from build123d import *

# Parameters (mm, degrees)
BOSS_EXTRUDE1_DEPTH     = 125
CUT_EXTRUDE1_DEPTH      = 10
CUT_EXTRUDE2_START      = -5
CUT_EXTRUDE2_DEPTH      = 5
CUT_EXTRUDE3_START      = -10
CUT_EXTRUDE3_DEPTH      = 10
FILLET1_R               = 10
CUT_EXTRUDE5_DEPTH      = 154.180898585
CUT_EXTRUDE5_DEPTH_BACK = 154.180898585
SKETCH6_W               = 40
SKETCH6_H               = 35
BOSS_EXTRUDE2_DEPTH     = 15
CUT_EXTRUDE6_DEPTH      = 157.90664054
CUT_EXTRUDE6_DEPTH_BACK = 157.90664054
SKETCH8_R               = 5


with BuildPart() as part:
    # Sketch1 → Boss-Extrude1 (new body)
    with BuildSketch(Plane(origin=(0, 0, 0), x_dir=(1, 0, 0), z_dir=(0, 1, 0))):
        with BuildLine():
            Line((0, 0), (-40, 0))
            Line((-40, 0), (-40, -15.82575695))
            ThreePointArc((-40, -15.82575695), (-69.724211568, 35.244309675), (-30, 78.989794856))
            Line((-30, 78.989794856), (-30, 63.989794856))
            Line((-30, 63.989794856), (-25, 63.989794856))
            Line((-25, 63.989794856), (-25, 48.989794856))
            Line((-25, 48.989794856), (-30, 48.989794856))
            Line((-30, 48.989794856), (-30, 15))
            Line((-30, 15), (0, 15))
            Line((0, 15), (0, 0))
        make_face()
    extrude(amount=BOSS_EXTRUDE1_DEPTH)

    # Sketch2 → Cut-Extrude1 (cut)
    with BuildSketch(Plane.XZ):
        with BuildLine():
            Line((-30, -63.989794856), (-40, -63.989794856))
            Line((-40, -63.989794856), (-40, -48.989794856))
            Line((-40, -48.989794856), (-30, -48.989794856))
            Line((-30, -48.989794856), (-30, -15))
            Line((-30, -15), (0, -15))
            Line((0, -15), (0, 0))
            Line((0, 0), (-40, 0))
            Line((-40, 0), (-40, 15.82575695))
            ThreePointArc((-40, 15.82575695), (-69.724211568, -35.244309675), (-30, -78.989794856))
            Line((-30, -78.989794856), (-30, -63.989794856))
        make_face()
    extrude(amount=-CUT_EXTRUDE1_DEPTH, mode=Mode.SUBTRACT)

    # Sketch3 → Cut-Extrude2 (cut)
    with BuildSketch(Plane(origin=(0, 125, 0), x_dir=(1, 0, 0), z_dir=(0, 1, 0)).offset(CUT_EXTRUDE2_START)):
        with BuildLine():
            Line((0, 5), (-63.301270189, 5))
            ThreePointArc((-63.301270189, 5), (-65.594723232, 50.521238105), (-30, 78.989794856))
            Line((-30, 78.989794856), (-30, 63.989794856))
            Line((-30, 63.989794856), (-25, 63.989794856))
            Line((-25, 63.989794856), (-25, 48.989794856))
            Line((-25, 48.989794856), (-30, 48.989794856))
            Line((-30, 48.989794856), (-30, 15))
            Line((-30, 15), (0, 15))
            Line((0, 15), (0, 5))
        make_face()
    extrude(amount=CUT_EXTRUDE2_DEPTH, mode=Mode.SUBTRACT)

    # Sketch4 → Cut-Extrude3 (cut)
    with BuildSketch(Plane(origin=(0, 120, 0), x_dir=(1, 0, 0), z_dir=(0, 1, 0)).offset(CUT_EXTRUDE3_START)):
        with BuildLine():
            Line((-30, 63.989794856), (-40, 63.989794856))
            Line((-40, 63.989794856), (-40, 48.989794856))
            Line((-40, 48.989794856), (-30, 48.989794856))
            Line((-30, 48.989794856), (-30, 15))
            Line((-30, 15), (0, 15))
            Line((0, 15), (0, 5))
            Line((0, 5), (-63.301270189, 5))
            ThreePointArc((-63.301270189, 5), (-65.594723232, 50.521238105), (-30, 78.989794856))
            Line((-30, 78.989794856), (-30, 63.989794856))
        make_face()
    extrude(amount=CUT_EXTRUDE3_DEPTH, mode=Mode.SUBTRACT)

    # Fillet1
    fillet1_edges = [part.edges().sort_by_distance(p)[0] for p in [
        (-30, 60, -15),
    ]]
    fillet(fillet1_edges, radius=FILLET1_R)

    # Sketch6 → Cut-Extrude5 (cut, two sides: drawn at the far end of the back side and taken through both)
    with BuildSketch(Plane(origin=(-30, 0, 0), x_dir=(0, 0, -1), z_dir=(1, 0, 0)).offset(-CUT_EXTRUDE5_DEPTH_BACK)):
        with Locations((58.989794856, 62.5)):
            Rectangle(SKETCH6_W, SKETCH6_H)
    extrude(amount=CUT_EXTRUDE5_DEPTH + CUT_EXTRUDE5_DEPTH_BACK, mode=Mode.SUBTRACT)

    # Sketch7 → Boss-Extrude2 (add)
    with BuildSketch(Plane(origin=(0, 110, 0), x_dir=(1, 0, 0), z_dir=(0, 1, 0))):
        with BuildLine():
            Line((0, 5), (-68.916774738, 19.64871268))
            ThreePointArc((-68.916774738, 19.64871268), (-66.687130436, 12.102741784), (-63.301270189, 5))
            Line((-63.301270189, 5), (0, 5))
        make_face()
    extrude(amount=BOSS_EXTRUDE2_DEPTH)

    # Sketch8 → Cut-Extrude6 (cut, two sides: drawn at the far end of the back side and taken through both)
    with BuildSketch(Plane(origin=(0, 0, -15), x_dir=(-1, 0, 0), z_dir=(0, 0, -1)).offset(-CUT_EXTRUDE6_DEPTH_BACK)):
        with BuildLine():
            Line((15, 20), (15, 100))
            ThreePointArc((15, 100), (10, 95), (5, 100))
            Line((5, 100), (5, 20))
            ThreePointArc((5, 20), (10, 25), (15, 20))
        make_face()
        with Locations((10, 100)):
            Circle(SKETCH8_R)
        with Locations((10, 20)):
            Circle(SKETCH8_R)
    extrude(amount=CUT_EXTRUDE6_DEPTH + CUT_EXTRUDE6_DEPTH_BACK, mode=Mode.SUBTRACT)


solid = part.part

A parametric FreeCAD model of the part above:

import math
import FreeCAD as App
import Part
import Sketcher
Q = App.Units.Quantity


def edges_at(feature, points):
    """Names of the edges that pass closest to the given points."""
    edges = feature.Shape.Edges
    near = lambda p: min(range(len(edges)), key=lambda i: edges[i].distToShape(Part.Vertex(*p))[0])
    return sorted({f"Edge{near(p) + 1}" for p in points})

doc = App.newDocument("Part")
params = doc.addObject("Spreadsheet::Sheet", "Params")
for row, (alias, value) in enumerate([
    ("sketch1_radius", "50 mm"),
    ("sketch1_width", "40 mm"),
    ("sketch1_width2", "30 mm"),
    ("sketch1_width3", "5 mm"),
    ("sketch1_height", "15 mm"),
    ("pad1_length", "125 mm"),
    ("sketch2_radius", "50 mm"),
    ("sketch2_width", "10 mm"),
    ("sketch2_width2", "30 mm"),
    ("sketch2_height", "15 mm"),
    ("pocket1_length", "10 mm"),
    ("sketch3_radius", "50 mm"),
    ("sketch3_width", "30 mm"),
    ("sketch3_width2", "5 mm"),
    ("sketch3_height", "10 mm"),
    ("sketch3_height2", "15 mm"),
    ("pocket2_length", "5 mm"),
    ("sketch4_radius", "50 mm"),
    ("sketch4_width", "10 mm"),
    ("sketch4_width2", "30 mm"),
    ("sketch4_height", "15 mm"),
    ("pocket3_length", "10 mm"),
    ("fillet_radius", "10 mm"),
    ("sketch5_width", "35 mm"),
    ("sketch5_height", "40 mm"),
    ("sketch6_radius", "50 mm"),
    ("pad2_length", "15 mm"),
    ("sketch7_radius", "5 mm"),
    ("sketch7_height", "80 mm"),
], start=1):
    params.set(f"A{row}", alias)
    params.set(f"B{row}", "=" + value)
    params.setAlias(f"B{row}", alias)

body = doc.addObject("PartDesign::Body", "Body")

# Sketch on XZ plane
sketch1 = body.newObject("Sketcher::SketchObject", "Sketch")
sketch1.AttachmentSupport = (doc.getObject("XZ_Plane"), [""])
sketch1.MapMode = "FlatFace"
sketch1.addGeometry(Part.LineSegment(App.Vector(-40, 0, 0), App.Vector(0, 0, 0)), False)
sketch1.addGeometry(Part.LineSegment(App.Vector(0, 0, 0), App.Vector(0, -15, 0)), False)
sketch1.addGeometry(Part.LineSegment(App.Vector(0, -15, 0), App.Vector(-30, -15, 0)), False)
sketch1.addGeometry(Part.LineSegment(App.Vector(-30, -15, 0), App.Vector(-30, -49, 0)), False)
sketch1.addGeometry(Part.LineSegment(App.Vector(-30, -49, 0), App.Vector(-25, -49, 0)), False)
sketch1.addGeometry(Part.LineSegment(App.Vector(-25, -49, 0), App.Vector(-25, -64, 0)), False)
sketch1.addGeometry(Part.LineSegment(App.Vector(-25, -64, 0), App.Vector(-30, -64, 0)), False)
sketch1.addGeometry(Part.LineSegment(App.Vector(-30, -64, 0), App.Vector(-30, -79, 0)), False)
sketch1.addGeometry(Part.ArcOfCircle(Part.Circle(App.Vector(-20, -30, 0), App.Vector(0, 0, 1), 50), math.radians(114), math.radians(258)), False)
sketch1.addGeometry(Part.LineSegment(App.Vector(-40, 16, 0), App.Vector(-40, 0, 0)), False)
sketch1.addConstraint(Sketcher.Constraint("Coincident", 0, 2, 1, 1))
sketch1.addConstraint(Sketcher.Constraint("Coincident", 1, 2, 2, 1))
sketch1.addConstraint(Sketcher.Constraint("Coincident", 2, 2, 3, 1))
sketch1.addConstraint(Sketcher.Constraint("Coincident", 3, 2, 4, 1))
sketch1.addConstraint(Sketcher.Constraint("Coincident", 4, 2, 5, 1))
sketch1.addConstraint(Sketcher.Constraint("Coincident", 5, 2, 6, 1))
sketch1.addConstraint(Sketcher.Constraint("Coincident", 6, 2, 7, 1))
sketch1.addConstraint(Sketcher.Constraint("Coincident", 7, 2, 8, 2))
sketch1.addConstraint(Sketcher.Constraint("Coincident", 8, 1, 9, 1))
sketch1.addConstraint(Sketcher.Constraint("Coincident", 9, 2, 0, 1))
sketch1.addConstraint(Sketcher.Constraint("Horizontal", 0))
sketch1.addConstraint(Sketcher.Constraint("Vertical", 1))
sketch1.addConstraint(Sketcher.Constraint("Horizontal", 2))
sketch1.addConstraint(Sketcher.Constraint("Vertical", 3))
sketch1.addConstraint(Sketcher.Constraint("Horizontal", 4))
sketch1.addConstraint(Sketcher.Constraint("Vertical", 5))
sketch1.addConstraint(Sketcher.Constraint("Horizontal", 6))
sketch1.addConstraint(Sketcher.Constraint("Vertical", 7))
sketch1.addConstraint(Sketcher.Constraint("Vertical", 9))
sketch1.addConstraint(Sketcher.Constraint("Coincident", 0, 2, -1, 1))
sketch1.addConstraint(Sketcher.Constraint("Vertical", 3, 2, 6, 2))
sketch1.addConstraint(Sketcher.Constraint("Equal", 1, 5))
sketch1.addConstraint(Sketcher.Constraint("Equal", 5, 7))
sketch1.addConstraint(Sketcher.Constraint("Radius", 8, 50.0))
sketch1.addConstraint(Sketcher.Constraint("DistanceX", 0, 1, 0, 2, 40.0))
sketch1.addConstraint(Sketcher.Constraint("DistanceX", 2, 2, 2, 1, 30.0))
sketch1.addConstraint(Sketcher.Constraint("DistanceX", 4, 1, 4, 2, 5.0))
sketch1.addConstraint(Sketcher.Constraint("DistanceY", 1, 2, 1, 1, 15.0))
sketch1.addConstraint(Sketcher.Constraint("DistanceX", 8, 3, -1, 1, 20.0))
sketch1.addConstraint(Sketcher.Constraint("DistanceY", 8, 3, -1, 1, 30.0))
sketch1.setExpression("Constraints[23]", "Params.sketch1_radius")
sketch1.setExpression("Constraints[24]", "Params.sketch1_width")
sketch1.setExpression("Constraints[25]", "Params.sketch1_width2")
sketch1.setExpression("Constraints[26]", "Params.sketch1_width3")
sketch1.setExpression("Constraints[27]", "Params.sketch1_height")
pad1 = body.newObject("PartDesign::Pad", "Pad")
pad1.Profile = sketch1
pad1.setExpression("Length", "Params.pad1_length")
pad1.Reversed = True

# Sketch on XZ plane
sketch2 = body.newObject("Sketcher::SketchObject", "Sketch001")
sketch2.AttachmentSupport = (doc.getObject("XZ_Plane"), [""])
sketch2.MapMode = "FlatFace"
sketch2.addGeometry(Part.LineSegment(App.Vector(-30, -64, 0), App.Vector(-40, -64, 0)), False)
sketch2.addGeometry(Part.LineSegment(App.Vector(-40, -64, 0), App.Vector(-40, -49, 0)), False)
sketch2.addGeometry(Part.LineSegment(App.Vector(-40, -49, 0), App.Vector(-30, -49, 0)), False)
sketch2.addGeometry(Part.LineSegment(App.Vector(-30, -49, 0), App.Vector(-30, -15, 0)), False)
sketch2.addGeometry(Part.LineSegment(App.Vector(-30, -15, 0), App.Vector(0, -15, 0)), False)
sketch2.addGeometry(Part.LineSegment(App.Vector(0, -15, 0), App.Vector(0, 0, 0)), False)
sketch2.addGeometry(Part.LineSegment(App.Vector(0, 0, 0), App.Vector(-40, 0, 0)), False)
sketch2.addGeometry(Part.LineSegment(App.Vector(-40, 0, 0), App.Vector(-40, 16, 0)), False)
sketch2.addGeometry(Part.ArcOfCircle(Part.Circle(App.Vector(-20, -30, 0), App.Vector(0, 0, 1), 50), math.radians(114), math.radians(258)), False)
sketch2.addGeometry(Part.LineSegment(App.Vector(-30, -79, 0), App.Vector(-30, -64, 0)), False)
sketch2.addConstraint(Sketcher.Constraint("Coincident", 0, 2, 1, 1))
sketch2.addConstraint(Sketcher.Constraint("Coincident", 1, 2, 2, 1))
sketch2.addConstraint(Sketcher.Constraint("Coincident", 2, 2, 3, 1))
sketch2.addConstraint(Sketcher.Constraint("Coincident", 3, 2, 4, 1))
sketch2.addConstraint(Sketcher.Constraint("Coincident", 4, 2, 5, 1))
sketch2.addConstraint(Sketcher.Constraint("Coincident", 5, 2, 6, 1))
sketch2.addConstraint(Sketcher.Constraint("Coincident", 6, 2, 7, 1))
sketch2.addConstraint(Sketcher.Constraint("Coincident", 7, 2, 8, 1))
sketch2.addConstraint(Sketcher.Constraint("Coincident", 8, 2, 9, 1))
sketch2.addConstraint(Sketcher.Constraint("Coincident", 9, 2, 0, 1))
sketch2.addConstraint(Sketcher.Constraint("Horizontal", 0))
sketch2.addConstraint(Sketcher.Constraint("Vertical", 1))
sketch2.addConstraint(Sketcher.Constraint("Horizontal", 2))
sketch2.addConstraint(Sketcher.Constraint("Vertical", 3))
sketch2.addConstraint(Sketcher.Constraint("Horizontal", 4))
sketch2.addConstraint(Sketcher.Constraint("Vertical", 5))
sketch2.addConstraint(Sketcher.Constraint("Horizontal", 6))
sketch2.addConstraint(Sketcher.Constraint("Vertical", 7))
sketch2.addConstraint(Sketcher.Constraint("Vertical", 9))
sketch2.addConstraint(Sketcher.Constraint("Coincident", 5, 2, -1, 1))
sketch2.addConstraint(Sketcher.Constraint("Vertical", 1, 2, 6, 2))
sketch2.addConstraint(Sketcher.Constraint("Vertical", 3, 2, 8, 2))
sketch2.addConstraint(Sketcher.Constraint("Equal", 1, 5))
sketch2.addConstraint(Sketcher.Constraint("Equal", 5, 9))
sketch2.addConstraint(Sketcher.Constraint("Radius", 8, 50.0))
sketch2.addConstraint(Sketcher.Constraint("DistanceX", 0, 2, 0, 1, 10.0))
sketch2.addConstraint(Sketcher.Constraint("DistanceX", 4, 1, 4, 2, 30.0))
sketch2.addConstraint(Sketcher.Constraint("DistanceY", 1, 1, 1, 2, 15.0))
sketch2.addConstraint(Sketcher.Constraint("DistanceX", 8, 3, -1, 1, 20.0))
sketch2.addConstraint(Sketcher.Constraint("DistanceY", 8, 3, -1, 1, 30.0))
sketch2.setExpression("Constraints[24]", "Params.sketch2_radius")
sketch2.setExpression("Constraints[25]", "Params.sketch2_width")
sketch2.setExpression("Constraints[26]", "Params.sketch2_width2")
sketch2.setExpression("Constraints[27]", "Params.sketch2_height")
pocket1 = body.newObject("PartDesign::Pocket", "Pocket")
pocket1.Profile = sketch2
pocket1.setExpression("Length", "Params.pocket1_length")

# Sketch on XZ plane
sketch3 = body.newObject("Sketcher::SketchObject", "Sketch002")
sketch3.AttachmentSupport = (doc.getObject("XZ_Plane"), [""])
sketch3.MapMode = "FlatFace"
sketch3.AttachmentOffset = App.Placement(App.Vector(0, 0, -120), App.Rotation())
sketch3.addGeometry(Part.LineSegment(App.Vector(-63, -5, 0), App.Vector(0, -5, 0)), False)
sketch3.addGeometry(Part.LineSegment(App.Vector(0, -5, 0), App.Vector(0, -15, 0)), False)
sketch3.addGeometry(Part.LineSegment(App.Vector(0, -15, 0), App.Vector(-30, -15, 0)), False)
sketch3.addGeometry(Part.LineSegment(App.Vector(-30, -15, 0), App.Vector(-30, -49, 0)), False)
sketch3.addGeometry(Part.LineSegment(App.Vector(-30, -49, 0), App.Vector(-25, -49, 0)), False)
sketch3.addGeometry(Part.LineSegment(App.Vector(-25, -49, 0), App.Vector(-25, -64, 0)), False)
sketch3.addGeometry(Part.LineSegment(App.Vector(-25, -64, 0), App.Vector(-30, -64, 0)), False)
sketch3.addGeometry(Part.LineSegment(App.Vector(-30, -64, 0), App.Vector(-30, -79, 0)), False)
sketch3.addGeometry(Part.ArcOfCircle(Part.Circle(App.Vector(-20, -30, 0), App.Vector(0, 0, 1), 50), math.radians(150), math.radians(258)), False)
sketch3.addConstraint(Sketcher.Constraint("Coincident", 0, 2, 1, 1))
sketch3.addConstraint(Sketcher.Constraint("Coincident", 1, 2, 2, 1))
sketch3.addConstraint(Sketcher.Constraint("Coincident", 2, 2, 3, 1))
sketch3.addConstraint(Sketcher.Constraint("Coincident", 3, 2, 4, 1))
sketch3.addConstraint(Sketcher.Constraint("Coincident", 4, 2, 5, 1))
sketch3.addConstraint(Sketcher.Constraint("Coincident", 5, 2, 6, 1))
sketch3.addConstraint(Sketcher.Constraint("Coincident", 6, 2, 7, 1))
sketch3.addConstraint(Sketcher.Constraint("Coincident", 7, 2, 8, 2))
sketch3.addConstraint(Sketcher.Constraint("Coincident", 8, 1, 0, 1))
sketch3.addConstraint(Sketcher.Constraint("Horizontal", 0))
sketch3.addConstraint(Sketcher.Constraint("Vertical", 1))
sketch3.addConstraint(Sketcher.Constraint("Horizontal", 2))
sketch3.addConstraint(Sketcher.Constraint("Vertical", 3))
sketch3.addConstraint(Sketcher.Constraint("Horizontal", 4))
sketch3.addConstraint(Sketcher.Constraint("Vertical", 5))
sketch3.addConstraint(Sketcher.Constraint("Horizontal", 6))
sketch3.addConstraint(Sketcher.Constraint("Vertical", 7))
sketch3.addConstraint(Sketcher.Constraint("PointOnObject", 0, 2, -2))
sketch3.addConstraint(Sketcher.Constraint("Vertical", 3, 2, 6, 2))
sketch3.addConstraint(Sketcher.Constraint("Equal", 5, 7))
sketch3.addConstraint(Sketcher.Constraint("Radius", 8, 50.0))
sketch3.addConstraint(Sketcher.Constraint("DistanceX", 2, 2, 2, 1, 30.0))
sketch3.addConstraint(Sketcher.Constraint("DistanceX", 4, 1, 4, 2, 5.0))
sketch3.addConstraint(Sketcher.Constraint("DistanceY", 1, 2, 1, 1, 10.0))
sketch3.addConstraint(Sketcher.Constraint("DistanceY", 5, 2, 5, 1, 15.0))
sketch3.addConstraint(Sketcher.Constraint("DistanceX", 8, 3, -1, 1, 20.0))
sketch3.addConstraint(Sketcher.Constraint("DistanceY", 8, 3, -1, 1, 30.0))
sketch3.addConstraint(Sketcher.Constraint("DistanceY", 0, 2, -1, 1, 5.0))
sketch3.setExpression("Constraints[20]", "Params.sketch3_radius")
sketch3.setExpression("Constraints[21]", "Params.sketch3_width")
sketch3.setExpression("Constraints[22]", "Params.sketch3_width2")
sketch3.setExpression("Constraints[23]", "Params.sketch3_height")
sketch3.setExpression("Constraints[24]", "Params.sketch3_height2")
pocket2 = body.newObject("PartDesign::Pocket", "Pocket001")
pocket2.Profile = sketch3
pocket2.setExpression("Length", "Params.pocket2_length")

# Sketch on XZ plane
sketch4 = body.newObject("Sketcher::SketchObject", "Sketch003")
sketch4.AttachmentSupport = (doc.getObject("XZ_Plane"), [""])
sketch4.MapMode = "FlatFace"
sketch4.AttachmentOffset = App.Placement(App.Vector(0, 0, -110), App.Rotation())
sketch4.addGeometry(Part.LineSegment(App.Vector(-40, -64, 0), App.Vector(-30, -64, 0)), False)
sketch4.addGeometry(Part.LineSegment(App.Vector(-30, -64, 0), App.Vector(-30, -79, 0)), False)
sketch4.addGeometry(Part.ArcOfCircle(Part.Circle(App.Vector(-20, -30, 0), App.Vector(0, 0, 1), 50), math.radians(150), math.radians(258)), False)
sketch4.addGeometry(Part.LineSegment(App.Vector(-63, -5, 0), App.Vector(0, -5, 0)), False)
sketch4.addGeometry(Part.LineSegment(App.Vector(0, -5, 0), App.Vector(0, -15, 0)), False)
sketch4.addGeometry(Part.LineSegment(App.Vector(0, -15, 0), App.Vector(-30, -15, 0)), False)
sketch4.addGeometry(Part.LineSegment(App.Vector(-30, -15, 0), App.Vector(-30, -49, 0)), False)
sketch4.addGeometry(Part.LineSegment(App.Vector(-30, -49, 0), App.Vector(-40, -49, 0)), False)
sketch4.addGeometry(Part.LineSegment(App.Vector(-40, -49, 0), App.Vector(-40, -64, 0)), False)
sketch4.addConstraint(Sketcher.Constraint("Coincident", 0, 2, 1, 1))
sketch4.addConstraint(Sketcher.Constraint("Coincident", 1, 2, 2, 2))
sketch4.addConstraint(Sketcher.Constraint("Coincident", 2, 1, 3, 1))
sketch4.addConstraint(Sketcher.Constraint("Coincident", 3, 2, 4, 1))
sketch4.addConstraint(Sketcher.Constraint("Coincident", 4, 2, 5, 1))
sketch4.addConstraint(Sketcher.Constraint("Coincident", 5, 2, 6, 1))
sketch4.addConstraint(Sketcher.Constraint("Coincident", 6, 2, 7, 1))
sketch4.addConstraint(Sketcher.Constraint("Coincident", 7, 2, 8, 1))
sketch4.addConstraint(Sketcher.Constraint("Coincident", 8, 2, 0, 1))
sketch4.addConstraint(Sketcher.Constraint("Horizontal", 0))
sketch4.addConstraint(Sketcher.Constraint("Vertical", 1))
sketch4.addConstraint(Sketcher.Constraint("Horizontal", 3))
sketch4.addConstraint(Sketcher.Constraint("Vertical", 4))
sketch4.addConstraint(Sketcher.Constraint("Horizontal", 5))
sketch4.addConstraint(Sketcher.Constraint("Vertical", 6))
sketch4.addConstraint(Sketcher.Constraint("Horizontal", 7))
sketch4.addConstraint(Sketcher.Constraint("Vertical", 8))
sketch4.addConstraint(Sketcher.Constraint("PointOnObject", 3, 2, -2))
sketch4.addConstraint(Sketcher.Constraint("Vertical", 1, 2, 5, 2))
sketch4.addConstraint(Sketcher.Constraint("Equal", 7, 4))
sketch4.addConstraint(Sketcher.Constraint("Equal", 1, 8))
sketch4.addConstraint(Sketcher.Constraint("Radius", 2, 50.0))
sketch4.addConstraint(Sketcher.Constraint("DistanceX", 0, 1, 0, 2, 10.0))
sketch4.addConstraint(Sketcher.Constraint("DistanceX", 5, 2, 5, 1, 30.0))
sketch4.addConstraint(Sketcher.Constraint("DistanceY", 1, 2, 1, 1, 15.0))
sketch4.addConstraint(Sketcher.Constraint("DistanceX", 2, 3, -1, 1, 20.0))
sketch4.addConstraint(Sketcher.Constraint("DistanceY", 2, 3, -1, 1, 30.0))
sketch4.addConstraint(Sketcher.Constraint("DistanceY", 2, 1, -1, 1, 5.0))
sketch4.setExpression("Constraints[21]", "Params.sketch4_radius")
sketch4.setExpression("Constraints[22]", "Params.sketch4_width")
sketch4.setExpression("Constraints[23]", "Params.sketch4_width2")
sketch4.setExpression("Constraints[24]", "Params.sketch4_height")
pocket3 = body.newObject("PartDesign::Pocket", "Pocket002")
pocket3.Profile = sketch4
pocket3.setExpression("Length", "Params.pocket3_length")
doc.recompute()

fillet = body.newObject("PartDesign::Fillet", "Fillet")
fillet.Base = (pocket3, edges_at(pocket3, [(-30, 60, -15)]))
fillet.setExpression("Radius", "Params.fillet_radius")

# Sketch on YZ plane
sketch5 = body.newObject("Sketcher::SketchObject", "Sketch004")
sketch5.AttachmentSupport = (doc.getObject("YZ_Plane"), [""])
sketch5.MapMode = "FlatFace"
sketch5.AttachmentOffset = App.Placement(App.Vector(0, 0, -30), App.Rotation())
sketch5.addGeometry(Part.LineSegment(App.Vector(80, -39, 0), App.Vector(45, -39, 0)), False)
sketch5.addGeometry(Part.LineSegment(App.Vector(45, -39, 0), App.Vector(45, -79, 0)), False)
sketch5.addGeometry(Part.LineSegment(App.Vector(45, -79, 0), App.Vector(80, -79, 0)), False)
sketch5.addGeometry(Part.LineSegment(App.Vector(80, -79, 0), App.Vector(80, -39, 0)), False)
sketch5.addConstraint(Sketcher.Constraint("Coincident", 0, 2, 1, 1))
sketch5.addConstraint(Sketcher.Constraint("Coincident", 1, 2, 2, 1))
sketch5.addConstraint(Sketcher.Constraint("Coincident", 2, 2, 3, 1))
sketch5.addConstraint(Sketcher.Constraint("Coincident", 3, 2, 0, 1))
sketch5.addConstraint(Sketcher.Constraint("Horizontal", 0))
sketch5.addConstraint(Sketcher.Constraint("Vertical", 1))
sketch5.addConstraint(Sketcher.Constraint("Horizontal", 2))
sketch5.addConstraint(Sketcher.Constraint("Vertical", 3))
sketch5.addConstraint(Sketcher.Constraint("DistanceX", 0, 2, 0, 1, 35.0))
sketch5.addConstraint(Sketcher.Constraint("DistanceY", 1, 2, 1, 1, 40.0))
sketch5.addConstraint(Sketcher.Constraint("DistanceX", -1, 1, 0, 2, 45.0))
sketch5.addConstraint(Sketcher.Constraint("DistanceY", 0, 2, -1, 1, 38.989795))
sketch5.setExpression("Constraints[8]", "Params.sketch5_width")
sketch5.setExpression("Constraints[9]", "Params.sketch5_height")
pocket4 = body.newObject("PartDesign::Pocket", "Pocket003")
pocket4.Profile = sketch5
pocket4.Type = "ThroughAll"
pocket4.Midplane = True

# Sketch on XZ plane
sketch6 = body.newObject("Sketcher::SketchObject", "Sketch005")
sketch6.AttachmentSupport = (doc.getObject("XZ_Plane"), [""])
sketch6.MapMode = "FlatFace"
sketch6.AttachmentOffset = App.Placement(App.Vector(0, 0, -110), App.Rotation())
sketch6.addGeometry(Part.LineSegment(App.Vector(0, -5, 0), App.Vector(-69, -20, 0)), False)
sketch6.addGeometry(Part.ArcOfCircle(Part.Circle(App.Vector(-20, -30, 0), App.Vector(0, 0, 1), 50), math.radians(150), math.radians(168.05)), False)
sketch6.addGeometry(Part.LineSegment(App.Vector(-63, -5, 0), App.Vector(0, -5, 0)), False)
sketch6.addConstraint(Sketcher.Constraint("Coincident", 0, 2, 1, 2))
sketch6.addConstraint(Sketcher.Constraint("Coincident", 1, 1, 2, 1))
sketch6.addConstraint(Sketcher.Constraint("Coincident", 2, 2, 0, 1))
sketch6.addConstraint(Sketcher.Constraint("Horizontal", 2))
sketch6.addConstraint(Sketcher.Constraint("PointOnObject", 2, 2, -2))
sketch6.addConstraint(Sketcher.Constraint("Radius", 1, 50.0))
sketch6.addConstraint(Sketcher.Constraint("Angle", 0, Q("-168 deg")))
sketch6.addConstraint(Sketcher.Constraint("DistanceX", 1, 3, -1, 1, 20.0))
sketch6.addConstraint(Sketcher.Constraint("DistanceY", 1, 3, -1, 1, 30.0))
sketch6.addConstraint(Sketcher.Constraint("DistanceY", 1, 1, -1, 1, 5.0))
sketch6.setExpression("Constraints[5]", "Params.sketch6_radius")
pad2 = body.newObject("PartDesign::Pad", "Pad001")
pad2.Profile = sketch6
pad2.setExpression("Length", "Params.pad2_length")
pad2.Reversed = True

# Sketch on XY plane
sketch7 = body.newObject("Sketcher::SketchObject", "Sketch006")
sketch7.AttachmentSupport = (doc.getObject("XY_Plane"), [""])
sketch7.MapMode = "FlatFace"
sketch7.AttachmentOffset = App.Placement(App.Vector(0, 0, -15), App.Rotation())
sketch7.addGeometry(Part.LineSegment(App.Vector(-15, 20, 0), App.Vector(-15, 100, 0)), False)
sketch7.addGeometry(Part.ArcOfCircle(Part.Circle(App.Vector(-10, 100, 0), App.Vector(0, 0, 1), 5), math.radians(0), math.radians(180)), False)
sketch7.addGeometry(Part.LineSegment(App.Vector(-5, 100, 0), App.Vector(-5, 20, 0)), False)
sketch7.addGeometry(Part.ArcOfCircle(Part.Circle(App.Vector(-10, 20, 0), App.Vector(0, 0, 1), 5), math.radians(180), math.radians(360)), False)
sketch7.addConstraint(Sketcher.Constraint("Tangent", 0, 2, 1, 2))
sketch7.addConstraint(Sketcher.Constraint("Tangent", 1, 1, 2, 1))
sketch7.addConstraint(Sketcher.Constraint("Tangent", 2, 2, 3, 2))
sketch7.addConstraint(Sketcher.Constraint("Tangent", 3, 1, 0, 1))
sketch7.addConstraint(Sketcher.Constraint("Vertical", 0))
sketch7.addConstraint(Sketcher.Constraint("Vertical", 2))
sketch7.addConstraint(Sketcher.Constraint("Radius", 1, 5.0))
sketch7.addConstraint(Sketcher.Constraint("DistanceY", 0, 1, 0, 2, 80.0))
sketch7.addConstraint(Sketcher.Constraint("DistanceX", 1, 3, -1, 1, 10.0))
sketch7.addConstraint(Sketcher.Constraint("DistanceY", -1, 1, 1, 3, 100.0))
sketch7.setExpression("Constraints[6]", "Params.sketch7_radius")
sketch7.setExpression("Constraints[7]", "Params.sketch7_height")
pocket5 = body.newObject("PartDesign::Pocket", "Pocket004")
pocket5.Profile = sketch7
pocket5.Type = "ThroughAll"
pocket5.Midplane = True

doc.recompute()
